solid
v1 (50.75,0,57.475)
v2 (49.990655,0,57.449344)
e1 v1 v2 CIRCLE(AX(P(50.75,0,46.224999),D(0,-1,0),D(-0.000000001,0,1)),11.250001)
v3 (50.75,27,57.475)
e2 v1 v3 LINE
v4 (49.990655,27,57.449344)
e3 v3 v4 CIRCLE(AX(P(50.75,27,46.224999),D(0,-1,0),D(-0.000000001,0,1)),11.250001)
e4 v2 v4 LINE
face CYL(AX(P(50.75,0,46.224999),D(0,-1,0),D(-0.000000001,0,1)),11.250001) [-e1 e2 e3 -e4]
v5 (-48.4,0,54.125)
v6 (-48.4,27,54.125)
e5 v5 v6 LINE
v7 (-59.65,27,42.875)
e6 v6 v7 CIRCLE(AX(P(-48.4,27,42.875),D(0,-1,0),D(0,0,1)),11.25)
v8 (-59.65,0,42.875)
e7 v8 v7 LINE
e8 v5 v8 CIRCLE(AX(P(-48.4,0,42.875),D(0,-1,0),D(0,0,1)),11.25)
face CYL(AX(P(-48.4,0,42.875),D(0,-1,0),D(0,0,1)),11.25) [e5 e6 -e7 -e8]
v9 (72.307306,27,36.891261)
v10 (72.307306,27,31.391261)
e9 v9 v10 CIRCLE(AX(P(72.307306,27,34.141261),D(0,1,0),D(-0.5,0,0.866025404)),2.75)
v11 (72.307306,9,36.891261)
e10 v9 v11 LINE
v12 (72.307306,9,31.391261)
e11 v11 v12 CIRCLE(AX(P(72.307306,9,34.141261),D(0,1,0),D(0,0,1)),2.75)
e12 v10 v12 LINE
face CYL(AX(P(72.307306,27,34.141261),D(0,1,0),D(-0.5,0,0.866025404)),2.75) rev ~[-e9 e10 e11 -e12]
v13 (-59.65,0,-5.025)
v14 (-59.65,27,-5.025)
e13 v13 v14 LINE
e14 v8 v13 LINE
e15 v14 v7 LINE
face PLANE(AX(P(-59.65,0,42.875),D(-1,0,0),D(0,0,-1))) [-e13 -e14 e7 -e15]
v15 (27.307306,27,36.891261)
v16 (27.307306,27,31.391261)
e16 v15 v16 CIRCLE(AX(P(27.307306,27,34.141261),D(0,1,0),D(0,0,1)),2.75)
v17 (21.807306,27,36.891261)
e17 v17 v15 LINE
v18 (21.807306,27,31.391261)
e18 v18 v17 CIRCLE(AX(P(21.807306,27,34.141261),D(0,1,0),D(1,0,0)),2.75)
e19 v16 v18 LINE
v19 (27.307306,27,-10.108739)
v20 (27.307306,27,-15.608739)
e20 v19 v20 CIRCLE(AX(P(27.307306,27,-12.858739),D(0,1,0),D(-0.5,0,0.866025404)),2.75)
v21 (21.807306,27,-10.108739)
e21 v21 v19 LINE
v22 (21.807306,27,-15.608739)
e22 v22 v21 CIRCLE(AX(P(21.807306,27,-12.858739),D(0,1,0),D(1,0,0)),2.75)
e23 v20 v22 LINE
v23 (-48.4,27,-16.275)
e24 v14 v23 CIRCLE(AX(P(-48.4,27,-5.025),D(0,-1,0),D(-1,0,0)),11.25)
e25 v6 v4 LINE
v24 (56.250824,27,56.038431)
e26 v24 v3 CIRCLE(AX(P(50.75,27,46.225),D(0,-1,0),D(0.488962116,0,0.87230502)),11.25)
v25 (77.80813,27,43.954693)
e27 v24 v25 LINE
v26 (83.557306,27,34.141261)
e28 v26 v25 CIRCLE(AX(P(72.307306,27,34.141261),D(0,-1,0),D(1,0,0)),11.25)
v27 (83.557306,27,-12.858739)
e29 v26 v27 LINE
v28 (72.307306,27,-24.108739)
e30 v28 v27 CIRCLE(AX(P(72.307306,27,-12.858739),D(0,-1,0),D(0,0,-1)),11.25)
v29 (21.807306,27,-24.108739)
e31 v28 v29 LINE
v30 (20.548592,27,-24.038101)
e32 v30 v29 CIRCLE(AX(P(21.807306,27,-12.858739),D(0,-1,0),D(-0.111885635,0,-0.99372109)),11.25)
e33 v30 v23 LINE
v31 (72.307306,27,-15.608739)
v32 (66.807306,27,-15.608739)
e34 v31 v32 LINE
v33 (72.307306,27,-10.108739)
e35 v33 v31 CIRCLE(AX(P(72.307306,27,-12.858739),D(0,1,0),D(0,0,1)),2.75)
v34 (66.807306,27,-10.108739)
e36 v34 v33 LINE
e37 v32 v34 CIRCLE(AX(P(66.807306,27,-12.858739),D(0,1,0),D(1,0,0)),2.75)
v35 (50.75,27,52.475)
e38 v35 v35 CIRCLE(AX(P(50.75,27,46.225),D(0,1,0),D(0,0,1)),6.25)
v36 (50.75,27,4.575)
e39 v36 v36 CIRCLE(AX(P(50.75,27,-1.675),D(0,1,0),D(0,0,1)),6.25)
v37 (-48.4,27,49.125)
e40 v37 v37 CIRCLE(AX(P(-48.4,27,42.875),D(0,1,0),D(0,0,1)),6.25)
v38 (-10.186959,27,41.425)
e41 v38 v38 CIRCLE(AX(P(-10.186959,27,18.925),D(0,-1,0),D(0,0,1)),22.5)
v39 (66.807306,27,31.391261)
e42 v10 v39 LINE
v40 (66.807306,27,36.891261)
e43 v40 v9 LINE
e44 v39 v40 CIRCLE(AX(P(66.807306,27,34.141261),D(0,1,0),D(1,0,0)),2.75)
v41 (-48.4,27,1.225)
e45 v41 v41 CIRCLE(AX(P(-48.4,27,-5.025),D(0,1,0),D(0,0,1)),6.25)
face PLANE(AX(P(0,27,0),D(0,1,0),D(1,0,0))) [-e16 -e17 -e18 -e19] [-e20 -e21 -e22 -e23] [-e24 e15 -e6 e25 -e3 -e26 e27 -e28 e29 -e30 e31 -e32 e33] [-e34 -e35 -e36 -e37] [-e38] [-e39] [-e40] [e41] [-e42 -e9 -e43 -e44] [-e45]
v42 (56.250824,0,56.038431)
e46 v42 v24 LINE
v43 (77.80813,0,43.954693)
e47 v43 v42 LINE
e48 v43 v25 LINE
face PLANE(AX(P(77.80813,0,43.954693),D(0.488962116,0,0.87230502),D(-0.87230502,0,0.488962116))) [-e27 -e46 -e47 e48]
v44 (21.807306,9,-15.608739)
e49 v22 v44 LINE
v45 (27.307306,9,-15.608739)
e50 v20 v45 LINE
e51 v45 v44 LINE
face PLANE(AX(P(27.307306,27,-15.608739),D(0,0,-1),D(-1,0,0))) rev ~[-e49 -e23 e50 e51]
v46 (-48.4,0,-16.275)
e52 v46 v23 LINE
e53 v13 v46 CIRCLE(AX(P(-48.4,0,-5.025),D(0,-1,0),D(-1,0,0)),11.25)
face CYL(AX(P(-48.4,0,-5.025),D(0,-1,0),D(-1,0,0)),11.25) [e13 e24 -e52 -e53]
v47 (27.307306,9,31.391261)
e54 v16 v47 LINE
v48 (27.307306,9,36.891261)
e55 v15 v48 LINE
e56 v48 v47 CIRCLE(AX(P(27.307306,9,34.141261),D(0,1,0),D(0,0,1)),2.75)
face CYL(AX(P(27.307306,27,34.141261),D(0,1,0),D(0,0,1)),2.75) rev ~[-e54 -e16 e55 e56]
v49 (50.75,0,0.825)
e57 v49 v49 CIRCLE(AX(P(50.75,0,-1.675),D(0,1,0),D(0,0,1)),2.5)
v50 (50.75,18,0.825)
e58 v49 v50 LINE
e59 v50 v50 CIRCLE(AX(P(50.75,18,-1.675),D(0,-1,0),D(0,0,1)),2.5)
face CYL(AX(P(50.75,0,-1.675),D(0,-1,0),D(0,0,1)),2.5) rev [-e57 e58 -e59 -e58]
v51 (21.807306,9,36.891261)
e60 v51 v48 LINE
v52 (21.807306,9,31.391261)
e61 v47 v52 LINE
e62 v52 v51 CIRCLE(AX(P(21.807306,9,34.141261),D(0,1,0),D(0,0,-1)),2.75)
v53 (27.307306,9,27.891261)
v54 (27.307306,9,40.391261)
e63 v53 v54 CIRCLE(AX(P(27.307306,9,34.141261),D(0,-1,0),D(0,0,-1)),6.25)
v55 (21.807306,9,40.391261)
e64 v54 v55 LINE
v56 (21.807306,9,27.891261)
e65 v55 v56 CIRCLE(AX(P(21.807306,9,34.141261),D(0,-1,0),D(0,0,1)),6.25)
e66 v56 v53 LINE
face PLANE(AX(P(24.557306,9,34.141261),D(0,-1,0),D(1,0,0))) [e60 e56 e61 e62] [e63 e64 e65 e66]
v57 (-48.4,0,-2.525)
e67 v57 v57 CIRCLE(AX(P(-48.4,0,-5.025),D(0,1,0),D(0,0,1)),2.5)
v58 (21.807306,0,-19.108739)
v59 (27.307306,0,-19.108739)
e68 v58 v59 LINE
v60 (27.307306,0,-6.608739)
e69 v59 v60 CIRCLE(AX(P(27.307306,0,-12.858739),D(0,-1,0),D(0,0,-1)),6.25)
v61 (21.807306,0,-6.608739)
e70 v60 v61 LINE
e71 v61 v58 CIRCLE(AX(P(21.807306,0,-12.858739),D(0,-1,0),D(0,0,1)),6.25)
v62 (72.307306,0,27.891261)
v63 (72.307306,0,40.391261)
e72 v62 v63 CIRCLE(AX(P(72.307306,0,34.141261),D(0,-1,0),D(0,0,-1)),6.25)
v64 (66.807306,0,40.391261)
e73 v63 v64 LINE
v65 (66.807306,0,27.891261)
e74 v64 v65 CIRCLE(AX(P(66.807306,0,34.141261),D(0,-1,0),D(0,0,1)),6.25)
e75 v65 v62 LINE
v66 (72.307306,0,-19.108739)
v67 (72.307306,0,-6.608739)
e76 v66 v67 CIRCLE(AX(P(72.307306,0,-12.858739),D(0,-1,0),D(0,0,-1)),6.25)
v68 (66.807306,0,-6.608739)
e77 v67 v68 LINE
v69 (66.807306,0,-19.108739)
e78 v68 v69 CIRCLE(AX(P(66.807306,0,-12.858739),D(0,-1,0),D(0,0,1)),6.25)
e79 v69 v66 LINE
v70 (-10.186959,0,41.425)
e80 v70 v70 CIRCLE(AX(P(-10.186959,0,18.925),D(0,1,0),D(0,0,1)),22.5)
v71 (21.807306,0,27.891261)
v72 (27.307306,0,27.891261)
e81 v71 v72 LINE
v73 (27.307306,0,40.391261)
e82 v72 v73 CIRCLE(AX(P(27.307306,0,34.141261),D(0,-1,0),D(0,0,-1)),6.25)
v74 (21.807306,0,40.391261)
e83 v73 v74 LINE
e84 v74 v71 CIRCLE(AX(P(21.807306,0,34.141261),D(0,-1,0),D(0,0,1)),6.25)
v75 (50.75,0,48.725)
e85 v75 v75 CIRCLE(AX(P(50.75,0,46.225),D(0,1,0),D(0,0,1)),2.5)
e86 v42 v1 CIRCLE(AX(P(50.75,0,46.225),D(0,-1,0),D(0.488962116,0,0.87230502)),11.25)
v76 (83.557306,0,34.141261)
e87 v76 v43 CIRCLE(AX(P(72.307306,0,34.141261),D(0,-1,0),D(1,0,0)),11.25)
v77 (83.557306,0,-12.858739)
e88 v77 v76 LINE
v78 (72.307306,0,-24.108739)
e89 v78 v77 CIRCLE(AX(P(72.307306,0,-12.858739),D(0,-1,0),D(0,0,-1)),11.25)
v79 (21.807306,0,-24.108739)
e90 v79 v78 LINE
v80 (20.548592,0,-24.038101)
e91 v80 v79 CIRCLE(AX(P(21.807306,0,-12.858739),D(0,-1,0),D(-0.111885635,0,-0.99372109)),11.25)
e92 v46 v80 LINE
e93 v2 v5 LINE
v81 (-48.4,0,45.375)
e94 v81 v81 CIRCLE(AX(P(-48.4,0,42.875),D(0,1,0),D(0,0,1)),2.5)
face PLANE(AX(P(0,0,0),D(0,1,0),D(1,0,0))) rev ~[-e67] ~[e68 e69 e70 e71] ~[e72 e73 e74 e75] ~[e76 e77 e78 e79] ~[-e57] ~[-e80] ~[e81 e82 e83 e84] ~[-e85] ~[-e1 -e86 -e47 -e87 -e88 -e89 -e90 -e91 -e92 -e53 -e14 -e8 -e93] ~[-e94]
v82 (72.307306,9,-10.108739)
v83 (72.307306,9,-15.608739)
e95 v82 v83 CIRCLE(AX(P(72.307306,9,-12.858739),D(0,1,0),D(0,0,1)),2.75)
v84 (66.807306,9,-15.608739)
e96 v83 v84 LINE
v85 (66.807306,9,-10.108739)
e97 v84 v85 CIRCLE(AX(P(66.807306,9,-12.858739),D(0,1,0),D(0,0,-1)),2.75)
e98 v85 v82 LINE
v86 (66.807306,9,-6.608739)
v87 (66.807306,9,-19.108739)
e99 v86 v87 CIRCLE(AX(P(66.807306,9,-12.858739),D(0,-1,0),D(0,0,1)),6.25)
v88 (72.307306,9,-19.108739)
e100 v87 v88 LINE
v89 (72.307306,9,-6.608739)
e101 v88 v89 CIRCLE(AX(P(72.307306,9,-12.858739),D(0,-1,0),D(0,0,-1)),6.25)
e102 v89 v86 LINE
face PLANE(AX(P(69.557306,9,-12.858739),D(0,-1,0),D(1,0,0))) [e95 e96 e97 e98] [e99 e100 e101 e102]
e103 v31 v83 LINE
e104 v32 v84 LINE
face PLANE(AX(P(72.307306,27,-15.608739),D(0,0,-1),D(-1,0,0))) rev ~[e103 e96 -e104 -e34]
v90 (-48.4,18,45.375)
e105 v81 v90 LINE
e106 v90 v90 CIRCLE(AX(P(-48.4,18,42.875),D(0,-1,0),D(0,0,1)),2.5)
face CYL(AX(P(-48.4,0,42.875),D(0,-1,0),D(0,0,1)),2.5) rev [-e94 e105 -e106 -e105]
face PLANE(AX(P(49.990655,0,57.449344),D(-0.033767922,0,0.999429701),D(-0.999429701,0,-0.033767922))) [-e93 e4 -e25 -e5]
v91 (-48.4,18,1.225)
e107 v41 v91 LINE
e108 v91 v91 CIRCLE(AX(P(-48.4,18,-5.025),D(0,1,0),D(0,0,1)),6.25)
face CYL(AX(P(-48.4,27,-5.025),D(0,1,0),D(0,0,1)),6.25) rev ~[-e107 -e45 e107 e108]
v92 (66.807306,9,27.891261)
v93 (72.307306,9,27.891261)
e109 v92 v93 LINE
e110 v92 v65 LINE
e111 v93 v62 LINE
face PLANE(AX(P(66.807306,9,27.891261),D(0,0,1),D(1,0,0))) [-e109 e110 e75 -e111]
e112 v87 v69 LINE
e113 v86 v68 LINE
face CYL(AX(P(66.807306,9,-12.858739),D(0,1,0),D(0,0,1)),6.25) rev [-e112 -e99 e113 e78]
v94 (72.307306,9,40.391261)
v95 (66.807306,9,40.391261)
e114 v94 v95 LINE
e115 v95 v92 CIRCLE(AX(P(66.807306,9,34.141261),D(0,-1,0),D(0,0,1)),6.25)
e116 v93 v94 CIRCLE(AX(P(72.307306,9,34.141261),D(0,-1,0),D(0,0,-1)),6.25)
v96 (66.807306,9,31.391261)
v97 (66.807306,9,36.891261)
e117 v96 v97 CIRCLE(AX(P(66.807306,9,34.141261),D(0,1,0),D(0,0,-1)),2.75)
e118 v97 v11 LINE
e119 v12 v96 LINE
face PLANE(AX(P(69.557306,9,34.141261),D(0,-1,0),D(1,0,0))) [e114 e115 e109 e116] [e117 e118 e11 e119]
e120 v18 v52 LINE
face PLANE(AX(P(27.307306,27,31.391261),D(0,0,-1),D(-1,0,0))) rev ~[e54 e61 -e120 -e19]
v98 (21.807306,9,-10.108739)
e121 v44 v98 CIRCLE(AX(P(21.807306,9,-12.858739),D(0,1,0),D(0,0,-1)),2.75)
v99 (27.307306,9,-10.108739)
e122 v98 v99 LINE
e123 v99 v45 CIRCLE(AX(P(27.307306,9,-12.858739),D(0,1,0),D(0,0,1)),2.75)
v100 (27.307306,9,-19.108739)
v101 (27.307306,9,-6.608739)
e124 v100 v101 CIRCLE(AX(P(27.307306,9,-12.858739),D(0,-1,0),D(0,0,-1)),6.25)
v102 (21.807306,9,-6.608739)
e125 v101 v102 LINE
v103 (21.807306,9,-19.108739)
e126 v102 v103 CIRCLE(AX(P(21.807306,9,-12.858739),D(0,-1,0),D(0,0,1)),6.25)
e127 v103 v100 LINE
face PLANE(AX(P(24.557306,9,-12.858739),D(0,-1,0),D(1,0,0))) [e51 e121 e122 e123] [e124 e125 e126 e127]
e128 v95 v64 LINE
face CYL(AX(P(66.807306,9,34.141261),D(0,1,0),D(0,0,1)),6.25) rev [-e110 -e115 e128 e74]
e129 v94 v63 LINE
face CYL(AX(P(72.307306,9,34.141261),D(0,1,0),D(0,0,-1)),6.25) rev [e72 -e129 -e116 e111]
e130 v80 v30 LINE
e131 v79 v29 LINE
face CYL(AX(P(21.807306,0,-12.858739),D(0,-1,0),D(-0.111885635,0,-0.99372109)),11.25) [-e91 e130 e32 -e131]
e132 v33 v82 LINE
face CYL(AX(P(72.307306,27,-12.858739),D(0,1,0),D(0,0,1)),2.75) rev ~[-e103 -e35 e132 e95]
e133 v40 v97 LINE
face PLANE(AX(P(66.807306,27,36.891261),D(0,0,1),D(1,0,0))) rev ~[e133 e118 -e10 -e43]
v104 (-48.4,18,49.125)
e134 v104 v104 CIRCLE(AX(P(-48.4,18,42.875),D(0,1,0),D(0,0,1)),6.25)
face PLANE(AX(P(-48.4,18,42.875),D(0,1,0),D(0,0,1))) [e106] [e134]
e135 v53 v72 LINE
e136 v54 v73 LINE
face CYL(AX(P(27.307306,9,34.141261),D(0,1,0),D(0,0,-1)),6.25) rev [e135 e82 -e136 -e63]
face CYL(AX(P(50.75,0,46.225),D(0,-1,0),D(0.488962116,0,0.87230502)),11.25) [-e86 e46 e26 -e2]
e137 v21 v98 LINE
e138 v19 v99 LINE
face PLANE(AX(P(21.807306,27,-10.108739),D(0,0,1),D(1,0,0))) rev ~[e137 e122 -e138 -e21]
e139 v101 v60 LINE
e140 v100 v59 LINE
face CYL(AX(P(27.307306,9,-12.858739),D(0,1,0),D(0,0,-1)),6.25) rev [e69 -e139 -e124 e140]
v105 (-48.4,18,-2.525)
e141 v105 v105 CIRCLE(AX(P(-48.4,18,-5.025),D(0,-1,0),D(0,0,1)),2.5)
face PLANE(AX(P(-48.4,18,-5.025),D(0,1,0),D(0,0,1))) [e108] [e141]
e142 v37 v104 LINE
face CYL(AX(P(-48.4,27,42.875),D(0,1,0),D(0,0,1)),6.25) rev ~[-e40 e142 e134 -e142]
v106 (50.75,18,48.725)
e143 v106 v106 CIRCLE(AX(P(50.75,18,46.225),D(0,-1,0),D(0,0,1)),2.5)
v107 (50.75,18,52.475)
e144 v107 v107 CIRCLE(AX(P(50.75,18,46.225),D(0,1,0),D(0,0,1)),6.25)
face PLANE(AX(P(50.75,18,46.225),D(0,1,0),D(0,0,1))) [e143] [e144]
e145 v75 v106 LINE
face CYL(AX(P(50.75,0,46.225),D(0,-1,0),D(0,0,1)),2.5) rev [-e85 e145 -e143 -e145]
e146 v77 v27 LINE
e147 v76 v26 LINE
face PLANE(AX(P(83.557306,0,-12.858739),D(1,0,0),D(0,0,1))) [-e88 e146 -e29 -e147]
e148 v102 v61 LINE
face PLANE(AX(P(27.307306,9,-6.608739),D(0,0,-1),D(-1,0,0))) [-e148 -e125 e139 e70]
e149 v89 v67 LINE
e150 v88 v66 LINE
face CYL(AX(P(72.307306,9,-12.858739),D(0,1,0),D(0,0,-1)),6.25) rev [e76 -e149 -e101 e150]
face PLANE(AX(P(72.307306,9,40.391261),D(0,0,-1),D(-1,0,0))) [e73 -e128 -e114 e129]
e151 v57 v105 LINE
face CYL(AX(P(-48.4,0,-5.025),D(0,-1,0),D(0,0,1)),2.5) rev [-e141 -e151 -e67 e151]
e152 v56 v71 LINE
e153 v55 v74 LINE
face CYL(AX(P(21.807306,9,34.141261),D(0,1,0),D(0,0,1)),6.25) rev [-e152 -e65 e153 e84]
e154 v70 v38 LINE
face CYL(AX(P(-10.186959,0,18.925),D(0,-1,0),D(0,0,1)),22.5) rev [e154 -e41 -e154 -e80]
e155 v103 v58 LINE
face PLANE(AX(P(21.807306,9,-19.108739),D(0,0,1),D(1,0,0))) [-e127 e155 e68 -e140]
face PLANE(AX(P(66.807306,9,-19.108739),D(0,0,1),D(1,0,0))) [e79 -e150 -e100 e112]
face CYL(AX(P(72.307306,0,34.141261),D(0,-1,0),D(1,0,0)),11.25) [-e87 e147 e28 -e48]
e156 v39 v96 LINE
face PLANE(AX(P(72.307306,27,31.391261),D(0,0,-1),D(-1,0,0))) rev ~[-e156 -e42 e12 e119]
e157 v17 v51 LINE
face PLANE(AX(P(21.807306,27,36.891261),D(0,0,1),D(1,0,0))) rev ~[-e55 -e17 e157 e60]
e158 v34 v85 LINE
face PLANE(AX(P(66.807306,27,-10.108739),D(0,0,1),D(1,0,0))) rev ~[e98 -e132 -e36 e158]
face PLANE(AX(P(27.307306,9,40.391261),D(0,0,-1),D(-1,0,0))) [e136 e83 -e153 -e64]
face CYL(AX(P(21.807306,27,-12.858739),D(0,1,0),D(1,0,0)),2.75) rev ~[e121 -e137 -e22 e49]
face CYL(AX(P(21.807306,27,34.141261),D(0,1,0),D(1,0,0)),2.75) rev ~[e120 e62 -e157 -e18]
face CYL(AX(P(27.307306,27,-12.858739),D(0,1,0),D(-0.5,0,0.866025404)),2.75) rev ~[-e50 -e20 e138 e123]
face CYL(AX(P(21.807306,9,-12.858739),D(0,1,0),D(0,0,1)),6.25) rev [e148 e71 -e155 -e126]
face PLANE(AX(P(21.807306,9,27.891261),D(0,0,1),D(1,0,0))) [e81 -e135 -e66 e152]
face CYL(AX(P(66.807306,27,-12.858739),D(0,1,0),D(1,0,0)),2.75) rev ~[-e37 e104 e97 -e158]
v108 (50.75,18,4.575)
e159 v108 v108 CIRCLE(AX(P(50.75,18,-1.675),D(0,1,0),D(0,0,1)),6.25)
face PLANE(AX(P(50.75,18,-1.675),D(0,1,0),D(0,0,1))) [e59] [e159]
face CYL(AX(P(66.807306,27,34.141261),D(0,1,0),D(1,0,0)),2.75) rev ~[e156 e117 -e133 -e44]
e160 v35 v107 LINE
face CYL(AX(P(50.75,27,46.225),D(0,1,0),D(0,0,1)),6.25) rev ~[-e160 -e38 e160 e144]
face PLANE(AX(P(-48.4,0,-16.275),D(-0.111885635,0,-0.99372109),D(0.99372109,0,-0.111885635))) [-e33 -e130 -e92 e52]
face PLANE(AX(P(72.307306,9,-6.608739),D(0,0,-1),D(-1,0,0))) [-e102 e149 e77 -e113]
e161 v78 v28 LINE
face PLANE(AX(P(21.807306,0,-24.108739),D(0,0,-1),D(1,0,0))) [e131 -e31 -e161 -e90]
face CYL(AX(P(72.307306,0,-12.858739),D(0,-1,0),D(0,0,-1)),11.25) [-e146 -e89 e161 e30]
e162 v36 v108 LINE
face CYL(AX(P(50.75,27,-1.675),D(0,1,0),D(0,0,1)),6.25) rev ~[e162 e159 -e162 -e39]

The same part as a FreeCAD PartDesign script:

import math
import FreeCAD as App
import Part
import Sketcher
from FreeCAD import Vector


def add_polygon(sketch, points):
    """Adds a closed chain of lines whose ends are joined by coincident constraints."""
    first, n = sketch.GeometryCount, len(points)
    for a, b in zip(points, points[1:] + points[:1]):
        sketch.addGeometry(Part.LineSegment(App.Vector(*a, 0), App.Vector(*b, 0)), False)
    for i in range(n):
        sketch.addConstraint(Sketcher.Constraint("Coincident", first + i, 2, first + (i + 1) % n, 1))

doc = App.newDocument("Part")
body = doc.addObject("PartDesign::Body", "Body")

sketch1 = body.newObject("Sketcher::SketchObject", "Sketch")
sketch1.AttachmentSupport = (doc.getObject("XZ_Plane"), [""])
sketch1.MapMode = "FlatFace"
add_polygon(sketch1, [(-75.2, -55.1), (-75.2, 55.1), (75.2, 55.1), (75.2, -55.1)])
sketch1.addGeometry(Part.Circle(Vector(-48.4, 42.9, 0), Vector(0, 0, 1), 2.5), False)
sketch1.addGeometry(Part.Circle(Vector(50.8, 46.2, 0), Vector(0, 0, 1), 2.5), False)
sketch1.addGeometry(Part.Circle(Vector(-48.4, -5, 0), Vector(0, 0, 1), 2.5), False)
sketch1.addGeometry(Part.Circle(Vector(50.8, -1.7, 0), Vector(0, 0, 1), 2.5), False)
sketch1.addConstraint([
    Sketcher.Constraint("Vertical", 0),
    Sketcher.Constraint("Horizontal", 1),
    Sketcher.Constraint("Vertical", 2),
    Sketcher.Constraint("Horizontal", 3),
    Sketcher.Constraint("Equal", 4, 5),
    Sketcher.Constraint("Equal", 5, 6),
    Sketcher.Constraint("Equal", 6, 7),
    Sketcher.Constraint("Symmetric", 0, 2, 2, 2, -1, 1),
    Sketcher.Constraint("Vertical", 4, 3, 6, 3),
    Sketcher.Constraint("Vertical", 5, 3, 7, 3),
    Sketcher.Constraint("Diameter", 4, 5.0),
    Sketcher.Constraint("DistanceX", 1, 1, 1, 2, 150.5),
    Sketcher.Constraint("DistanceX", 0, 2, 5, 3, 126.0),
    Sketcher.Constraint("DistanceY", 2, 2, 4, 3, 98.0),
    Sketcher.Constraint("DistanceY", 0, 1, 0, 2, 110.25),
    Sketcher.Constraint("DistanceX", 4, 3, -1, 1, 48.4),
    Sketcher.Constraint("DistanceY", 6, 3, 4, 3, 47.9),
    Sketcher.Constraint("DistanceY", 7, 3, 5, 3, 47.9),
    Sketcher.Constraint("DistanceY", 5, 3, 0, 2, 8.9),
])
pad1 = body.newObject("PartDesign::Pad", "Pad")
pad1.Profile = sketch1
pad1.Length = 27
pad1.Reversed = True

sketch2 = body.newObject("Sketcher::SketchObject", "Sketch001")
sketch2.AttachmentSupport = (doc.getObject("XZ_Plane"), [""])
sketch2.MapMode = "FlatFace"
add_polygon(sketch2, [(-150, -100), (-150, 100), (150, 100), (150, -100)])
add_polygon(sketch2, [(75, 55), (-75, 55), (-75, -55), (75, -55)])
sketch2.addConstraint([
    Sketcher.Constraint("Vertical", 0),
    Sketcher.Constraint("Horizontal", 1),
    Sketcher.Constraint("Vertical", 2),
    Sketcher.Constraint("Horizontal", 3),
    Sketcher.Constraint("Horizontal", 4),
    Sketcher.Constraint("Vertical", 5),
    Sketcher.Constraint("Horizontal", 6),
    Sketcher.Constraint("Vertical", 7),
    Sketcher.Constraint("Symmetric", 0, 2, 2, 2, -1, 1),
    Sketcher.Constraint("Symmetric", 4, 2, 6, 2, -1, 1),
    Sketcher.Constraint("DistanceX", 1, 1, 1, 2, 300.0),
    Sketcher.Constraint("DistanceY", 0, 1, 0, 2, 200.0),
    Sketcher.Constraint("DistanceX", 4, 2, 4, 1, 150.5),
    Sketcher.Constraint("DistanceY", 5, 2, 5, 1, 110.25),
])
pad2 = body.newObject("PartDesign::Pad", "Pad001")
pad2.Profile = sketch2
pad2.Length = 27
pad2.Reversed = True

sketch3 = body.newObject("Sketcher::SketchObject", "Sketch002")
sketch3.AttachmentSupport = (doc.getObject("XZ_Plane"), [""])
sketch3.MapMode = "FlatFace"
sketch3.AttachmentOffset = App.Placement(Vector(0, 0, -27), App.Rotation())
sketch3.addGeometry([
    Part.Circle(Vector(-48, -5, 0), Vector(0, 0, 1), 6),
    Part.Circle(Vector(-48, 43, 0), Vector(0, 0, 1), 6),
    Part.Circle(Vector(51, 46, 0), Vector(0, 0, 1), 6),
    Part.Circle(Vector(51, -2, 0), Vector(0, 0, 1), 6),
], False)
sketch3.addConstraint([
    Sketcher.Constraint("Equal", 0, 1),
    Sketcher.Constraint("Equal", 1, 2),
    Sketcher.Constraint("Equal", 2, 3),
    Sketcher.Constraint("Vertical", 0, 3, 1, 3),
    Sketcher.Constraint("Vertical", 2, 3, 3, 3),
    Sketcher.Constraint("Diameter", 0, 12.5),
    Sketcher.Constraint("DistanceX", 0, 3, -1, 1, 48.4),
    Sketcher.Constraint("DistanceY", 0, 3, 1, 3, 47.9),
    Sketcher.Constraint("DistanceY", 3, 3, 2, 3, 47.9),
    Sketcher.Constraint("DistanceX", -1, 1, 2, 3, 50.75),
    Sketcher.Constraint("DistanceY", 1, 3, 2, 3, 3.35),
    Sketcher.Constraint("DistanceY", 0, 3, -1, 1, 5.025),
])
pocket1 = body.newObject("PartDesign::Pocket", "Pocket")
pocket1.Profile = sketch3
pocket1.Length = 9
pocket1.Reversed = True

sketch4 = body.newObject("Sketcher::SketchObject", "Sketch003")
sketch4.AttachmentSupport = (doc.getObject("XZ_Plane"), [""])
sketch4.MapMode = "FlatFace"
sketch4.AttachmentOffset = App.Placement(Vector(0, 0, -27), App.Rotation())
sketch4.addGeometry([
    Part.ArcOfCircle(Part.Circle(Vector(27.3, -12.9, 0), Vector(0, 0, 1), 2.8), math.radians(-90), math.radians(90)),
    Part.LineSegment(Vector(27.3, -15.6, 0), Vector(21.8, -15.6, 0)),
    Part.ArcOfCircle(Part.Circle(Vector(21.8, -12.9, 0), Vector(0, 0, 1), 2.8), math.radians(90), math.radians(270)),
    Part.LineSegment(Vector(21.8, -10.1, 0), Vector(27.3, -10.1, 0)),
    Part.ArcOfCircle(Part.Circle(Vector(72.3, -12.9, 0), Vector(0, 0, 1), 2.8), math.radians(-90), math.radians(90)),
    Part.LineSegment(Vector(72.3, -15.6, 0), Vector(66.8, -15.6, 0)),
    Part.ArcOfCircle(Part.Circle(Vector(66.8, -12.9, 0), Vector(0, 0, 1), 2.8), math.radians(90), math.radians(270)),
    Part.LineSegment(Vector(66.8, -10.1, 0), Vector(72.3, -10.1, 0)),
    Part.ArcOfCircle(Part.Circle(Vector(72.3, 34.1, 0), Vector(0, 0, 1), 2.8), math.radians(-90), math.radians(90)),
    Part.LineSegment(Vector(72.3, 31.4, 0), Vector(66.8, 31.4, 0)),
    Part.ArcOfCircle(Part.Circle(Vector(66.8, 34.1, 0), Vector(0, 0, 1), 2.8), math.radians(90), math.radians(270)),
    Part.LineSegment(Vector(66.8, 36.9, 0), Vector(72.3, 36.9, 0)),
    Part.LineSegment(Vector(27.3, 31.4, 0), Vector(21.8, 31.4, 0)),
    Part.ArcOfCircle(Part.Circle(Vector(21.8, 34.1, 0), Vector(0, 0, 1), 2.8), math.radians(90), math.radians(270)),
    Part.LineSegment(Vector(21.8, 36.9, 0), Vector(27.3, 36.9, 0)),
    Part.ArcOfCircle(Part.Circle(Vector(27.3, 34.1, 0), Vector(0, 0, 1), 2.8), math.radians(-90), math.radians(90)),
], False)
sketch4.addConstraint([
    Sketcher.Constraint("Tangent", 0, 1, 1, 1),
    Sketcher.Constraint("Tangent", 1, 2, 2, 2),
    Sketcher.Constraint("Tangent", 2, 1, 3, 1),
    Sketcher.Constraint("Tangent", 3, 2, 0, 2),
    Sketcher.Constraint("Tangent", 4, 1, 5, 1),
    Sketcher.Constraint("Tangent", 5, 2, 6, 2),
    Sketcher.Constraint("Tangent", 6, 1, 7, 1),
    Sketcher.Constraint("Tangent", 7, 2, 4, 2),
    Sketcher.Constraint("Tangent", 8, 1, 9, 1),
    Sketcher.Constraint("Tangent", 9, 2, 10, 2),
    Sketcher.Constraint("Tangent", 10, 1, 11, 1),
    Sketcher.Constraint("Tangent", 11, 2, 8, 2),
    Sketcher.Constraint("Tangent", 12, 2, 13, 2),
    Sketcher.Constraint("Tangent", 13, 1, 14, 1),
    Sketcher.Constraint("Tangent", 14, 2, 15, 2),
    Sketcher.Constraint("Tangent", 15, 1, 12, 1),
    Sketcher.Constraint("Horizontal", 1),
    Sketcher.Constraint("Horizontal", 3),
    Sketcher.Constraint("Horizontal", 5),
    Sketcher.Constraint("Horizontal", 7),
    Sketcher.Constraint("Horizontal", 9),
    Sketcher.Constraint("Horizontal", 11),
    Sketcher.Constraint("Horizontal", 12),
    Sketcher.Constraint("Horizontal", 14),
    Sketcher.Constraint("Equal", 2, 4),
    Sketcher.Constraint("Equal", 6, 8),
    Sketcher.Constraint("Equal", 10, 13),
    Sketcher.Constraint("Horizontal", 2, 3, 4, 3),
    Sketcher.Constraint("Horizontal", 10, 3, 13, 3),
    Sketcher.Constraint("Vertical", 4, 3, 8, 3),
    Sketcher.Constraint("Vertical", 6, 3, 10, 3),
    Sketcher.Constraint("Vertical", 2, 3, 13, 3),
    Sketcher.Constraint("Vertical", 0, 3, 15, 3),
    Sketcher.Constraint("Equal", 3, 5),
    Sketcher.Constraint("Radius", 0, 2.75),
    Sketcher.Constraint("DistanceX", 1, 2, 1, 1, 5.5),
    Sketcher.Constraint("DistanceX", 0, 3, 4, 3, 45.0),
    Sketcher.Constraint("DistanceY", 4, 3, 8, 3, 47.0),
    Sketcher.Constraint("DistanceY", 0, 3, -1, 1, 12.858739),
    Sketcher.Constraint("DistanceX", -1, 1, 0, 3, 27.307306),
])
pocket2 = body.newObject("PartDesign::Pocket", "Pocket001")
pocket2.Profile = sketch4
pocket2.Type = "ThroughAll"
pocket2.Reversed = True

sketch5 = body.newObject("Sketcher::SketchObject", "Sketch004")
sketch5.AttachmentSupport = (doc.getObject("XZ_Plane"), [""])
sketch5.MapMode = "FlatFace"
sketch5.AttachmentOffset = App.Placement(Vector(0, 0, -9), App.Rotation())
sketch5.addGeometry([
    Part.ArcOfCircle(Part.Circle(Vector(21.8, 34.1, 0), Vector(0, 0, 1), 6.2), math.radians(90), math.radians(270)),
    Part.LineSegment(Vector(21.8, 27.9, 0), Vector(27.3, 27.9, 0)),
    Part.ArcOfCircle(Part.Circle(Vector(27.3, 34.1, 0), Vector(0, 0, 1), 6.2), math.radians(-90), math.radians(90)),
    Part.LineSegment(Vector(27.3, 40.4, 0), Vector(21.8, 40.4, 0)),
    Part.ArcOfCircle(Part.Circle(Vector(21.8, 34.1, 0), Vector(0, 0, 1), 2.8), math.radians(90), math.radians(270)),
    Part.LineSegment(Vector(21.8, 36.9, 0), Vector(27.3, 36.9, 0)),
    Part.ArcOfCircle(Part.Circle(Vector(27.3, 34.1, 0), Vector(0, 0, 1), 2.8), math.radians(-90), math.radians(90)),
    Part.LineSegment(Vector(27.3, 31.4, 0), Vector(21.8, 31.4, 0)),
    Part.ArcOfCircle(Part.Circle(Vector(72.3, 34.1, 0), Vector(0, 0, 1), 6.2), math.radians(-90), math.radians(90)),
    Part.LineSegment(Vector(72.3, 40.4, 0), Vector(66.8, 40.4, 0)),
    Part.ArcOfCircle(Part.Circle(Vector(66.8, 34.1, 0), Vector(0, 0, 1), 6.2), math.radians(90), math.radians(270)),
    Part.LineSegment(Vector(66.8, 27.9, 0), Vector(72.3, 27.9, 0)),
    Part.ArcOfCircle(Part.Circle(Vector(72.3, 34.1, 0), Vector(0, 0, 1), 2.8), math.radians(-90), math.radians(90)),
    Part.LineSegment(Vector(72.3, 31.4, 0), Vector(66.8, 31.4, 0)),
    Part.ArcOfCircle(Part.Circle(Vector(66.8, 34.1, 0), Vector(0, 0, 1), 2.8), math.radians(90), math.radians(270)),
    Part.LineSegment(Vector(66.8, 36.9, 0), Vector(72.3, 36.9, 0)),
    Part.ArcOfCircle(Part.Circle(Vector(72.3, -12.9, 0), Vector(0, 0, 1), 6.2), math.radians(-90), math.radians(90)),
    Part.LineSegment(Vector(72.3, -6.6, 0), Vector(66.8, -6.6, 0)),
    Part.ArcOfCircle(Part.Circle(Vector(66.8, -12.9, 0), Vector(0, 0, 1), 6.2), math.radians(90), math.radians(270)),
    Part.LineSegment(Vector(66.8, -19.1, 0), Vector(72.3, -19.1, 0)),
    Part.ArcOfCircle(Part.Circle(Vector(72.3, -12.9, 0), Vector(0, 0, 1), 2.8), math.radians(-90), math.radians(90)),
    Part.LineSegment(Vector(72.3, -15.6, 0), Vector(66.8, -15.6, 0)),
    Part.ArcOfCircle(Part.Circle(Vector(66.8, -12.9, 0), Vector(0, 0, 1), 2.8), math.radians(90), math.radians(270)),
    Part.LineSegment(Vector(66.8, -10.1, 0), Vector(72.3, -10.1, 0)),
    Part.ArcOfCircle(Part.Circle(Vector(21.8, -12.9, 0), Vector(0, 0, 1), 6.2), math.radians(90), math.radians(270)),
    Part.LineSegment(Vector(21.8, -19.1, 0), Vector(27.3, -19.1, 0)),
    Part.ArcOfCircle(Part.Circle(Vector(27.3, -12.9, 0), Vector(0, 0, 1), 6.2), math.radians(-90), math.radians(90)),
    Part.LineSegment(Vector(27.3, -6.6, 0), Vector(21.8, -6.6, 0)),
    Part.ArcOfCircle(Part.Circle(Vector(21.8, -12.9, 0), Vector(0, 0, 1), 2.8), math.radians(90), math.radians(270)),
    Part.LineSegment(Vector(21.8, -10.1, 0), Vector(27.3, -10.1, 0)),
    Part.ArcOfCircle(Part.Circle(Vector(27.3, -12.9, 0), Vector(0, 0, 1), 2.8), math.radians(-90), math.radians(90)),
    Part.LineSegment(Vector(27.3, -15.6, 0), Vector(21.8, -15.6, 0)),
], False)
sketch5.addConstraint([
    Sketcher.Constraint("Tangent", 0, 2, 1, 1),
    Sketcher.Constraint("Tangent", 1, 2, 2, 1),
    Sketcher.Constraint("Tangent", 2, 2, 3, 1),
    Sketcher.Constraint("Tangent", 3, 2, 0, 1),
    Sketcher.Constraint("Tangent", 4, 1, 5, 1),
    Sketcher.Constraint("Tangent", 5, 2, 6, 2),
    Sketcher.Constraint("Tangent", 6, 1, 7, 1),
    Sketcher.Constraint("Tangent", 7, 2, 4, 2),
    Sketcher.Constraint("Tangent", 8, 2, 9, 1),
    Sketcher.Constraint("Tangent", 9, 2, 10, 1),
    Sketcher.Constraint("Tangent", 10, 2, 11, 1),
    Sketcher.Constraint("Tangent", 11, 2, 8, 1),
    Sketcher.Constraint("Tangent", 12, 1, 13, 1),
    Sketcher.Constraint("Tangent", 13, 2, 14, 2),
    Sketcher.Constraint("Tangent", 14, 1, 15, 1),
    Sketcher.Constraint("Tangent", 15, 2, 12, 2),
    Sketcher.Constraint("Tangent", 16, 2, 17, 1),
    Sketcher.Constraint("Tangent", 17, 2, 18, 1),
    Sketcher.Constraint("Tangent", 18, 2, 19, 1),
    Sketcher.Constraint("Tangent", 19, 2, 16, 1),
    Sketcher.Constraint("Tangent", 20, 1, 21, 1),
    Sketcher.Constraint("Tangent", 21, 2, 22, 2),
    Sketcher.Constraint("Tangent", 22, 1, 23, 1),
    Sketcher.Constraint("Tangent", 23, 2, 20, 2),
    Sketcher.Constraint("Tangent", 24, 2, 25, 1),
    Sketcher.Constraint("Tangent", 25, 2, 26, 1),
    Sketcher.Constraint("Tangent", 26, 2, 27, 1),
    Sketcher.Constraint("Tangent", 27, 2, 24, 1),
    Sketcher.Constraint("Tangent", 28, 1, 29, 1),
    Sketcher.Constraint("Tangent", 29, 2, 30, 2),
    Sketcher.Constraint("Tangent", 30, 1, 31, 1),
    Sketcher.Constraint("Tangent", 31, 2, 28, 2),
    Sketcher.Constraint("Horizontal", 1),
    Sketcher.Constraint("Horizontal", 3),
    Sketcher.Constraint("Horizontal", 5),
    Sketcher.Constraint("Horizontal", 7),
    Sketcher.Constraint("Horizontal", 9),
    Sketcher.Constraint("Horizontal", 11),
    Sketcher.Constraint("Horizontal", 13),
    Sketcher.Constraint("Horizontal", 15),
    Sketcher.Constraint("Horizontal", 17),
    Sketcher.Constraint("Horizontal", 19),
    Sketcher.Constraint("Horizontal", 21),
    Sketcher.Constraint("Horizontal", 23),
    Sketcher.Constraint("Horizontal", 25),
    Sketcher.Constraint("Horizontal", 27),
    Sketcher.Constraint("Horizontal", 29),
    Sketcher.Constraint("Horizontal", 31),
    Sketcher.Constraint("Coincident", 4, 3, 0, 3),
    Sketcher.Constraint("Coincident", 12, 3, 8, 3),
    Sketcher.Constraint("Coincident", 20, 3, 16, 3),
    Sketcher.Constraint("Coincident", 28, 3, 24, 3),
    Sketcher.Constraint("Equal", 2, 8),
    Sketcher.Constraint("Equal", 6, 12),
    Sketcher.Constraint("Equal", 10, 16),
    Sketcher.Constraint("Equal", 14, 20),
    Sketcher.Constraint("Equal", 18, 24),
    Sketcher.Constraint("Equal", 22, 28),
    Sketcher.Constraint("Horizontal", 6, 3, 8, 3),
    Sketcher.Constraint("Horizontal", 22, 3, 24, 3),
    Sketcher.Constraint("Vertical", 12, 3, 16, 3),
    Sketcher.Constraint("Vertical", 14, 3, 18, 3),
    Sketcher.Constraint("Vertical", 14, 3, 22, 3),
    Sketcher.Constraint("Vertical", 4, 3, 24, 3),
    Sketcher.Constraint("Vertical", 6, 3, 26, 3),
    Sketcher.Constraint("Vertical", 6, 3, 30, 3),
    Sketcher.Constraint("Vertical", 30, 3, 1, 2),
    Sketcher.Constraint("Vertical", 22, 3, 9, 2),
    Sketcher.Constraint("Equal", 7, 9),
    Sketcher.Constraint("Radius", 0, 6.25),
    Sketcher.Constraint("Radius", 4, 2.75),
    Sketcher.Constraint("DistanceX", 1, 1, 1, 2, 5.5),
    Sketcher.Constraint("DistanceX", 2, 3, 8, 3, 45.0),
    Sketcher.Constraint("DistanceY", 16, 3, 8, 3, 47.0),
    Sketcher.Constraint("DistanceY", -1, 1, 0, 3, 34.141261),
    Sketcher.Constraint("DistanceX", -1, 1, 0, 3, 21.807306),
])
pocket3 = body.newObject("PartDesign::Pocket", "Pocket002")
pocket3.Profile = sketch5
pocket3.Length = 9
pocket3.Reversed = True

sketch6 = body.newObject("Sketcher::SketchObject", "Sketch005")
sketch6.AttachmentSupport = (doc.getObject("XZ_Plane"), [""])
sketch6.MapMode = "FlatFace"
add_polygon(sketch6, [(-150, -100), (-150, 100), (150, 100), (150, -100)])
sketch6.addGeometry(Part.ArcOfCircle(Part.Circle(Vector(-48.4, 42.9, 0), Vector(0, 0, 1), 11.3), math.radians(90), math.radians(180)), False)
sketch6.addGeometry(Part.LineSegment(Vector(-59.6, 42.9, 0), Vector(-59.6, -5, 0)), False)
sketch6.addGeometry(Part.ArcOfCircle(Part.Circle(Vector(-48.4, -5, 0), Vector(0, 0, 1), 11.3), math.radians(-180), math.radians(-90)), False)
sketch6.addGeometry(Part.LineSegment(Vector(-48.4, -16.3, 0), Vector(20.5, -24, 0)), False)
sketch6.addGeometry(Part.ArcOfCircle(Part.Circle(Vector(21.8, -12.9, 0), Vector(0, 0, 1), 11.2), math.radians(-96.42), math.radians(-90)), False)
sketch6.addGeometry(Part.LineSegment(Vector(21.8, -24.1, 0), Vector(72.3, -24.1, 0)), False)
sketch6.addGeometry(Part.ArcOfCircle(Part.Circle(Vector(72.3, -12.9, 0), Vector(0, 0, 1), 11.2), math.radians(-90), math.radians(0)), False)
sketch6.addGeometry(Part.LineSegment(Vector(83.6, -12.9, 0), Vector(83.6, 34.1, 0)), False)
sketch6.addGeometry(Part.ArcOfCircle(Part.Circle(Vector(72.3, 34.1, 0), Vector(0, 0, 1), 11.3), math.radians(0), math.radians(61)), False)
sketch6.addGeometry(Part.LineSegment(Vector(77.8, 44, 0), Vector(56.3, 56, 0)), False)
sketch6.addGeometry(Part.ArcOfCircle(Part.Circle(Vector(50.7, 46.2, 0), Vector(0, 0, 1), 11.2), math.radians(61), math.radians(90)), False)
sketch6.addGeometry(Part.ArcOfCircle(Part.Circle(Vector(50.8, 46.2, 0), Vector(0, 0, 1), 11.3), math.radians(90), math.radians(93.87)), False)
sketch6.addGeometry(Part.LineSegment(Vector(50, 57.4, 0), Vector(-48.4, 54.1, 0)), False)
sketch6.addGeometry(Part.Circle(Vector(-10.2, 18.9, 0), Vector(0, 0, 1), 22.5), False)
sketch6.addConstraint([
    Sketcher.Constraint("Tangent", 4, 2, 5, 1),
    Sketcher.Constraint("Tangent", 5, 2, 6, 1),
    Sketcher.Constraint("Coincident", 6, 2, 7, 1),
    Sketcher.Constraint("Tangent", 7, 2, 8, 1),
    Sketcher.Constraint("Tangent", 8, 2, 9, 1),
    Sketcher.Constraint("Tangent", 9, 2, 10, 1),
    Sketcher.Constraint("Tangent", 10, 2, 11, 1),
    Sketcher.Constraint("Tangent", 11, 2, 12, 1),
    Sketcher.Constraint("Tangent", 12, 2, 13, 1),
    Sketcher.Constraint("Tangent", 13, 2, 14, 1),
    Sketcher.Constraint("Tangent", 14, 2, 15, 1),
    Sketcher.Constraint("Coincident", 15, 2, 16, 1),
    Sketcher.Constraint("Coincident", 16, 2, 4, 1),
    Sketcher.Constraint("Vertical", 0),
    Sketcher.Constraint("Horizontal", 1),
    Sketcher.Constraint("Vertical", 2),
    Sketcher.Constraint("Horizontal", 3),
    Sketcher.Constraint("Vertical", 5),
    Sketcher.Constraint("Horizontal", 9),
    Sketcher.Constraint("Vertical", 11),
    Sketcher.Constraint("Equal", 4, 6),
    Sketcher.Constraint("Equal", 6, 8),
    Sketcher.Constraint("Equal", 8, 10),
    Sketcher.Constraint("Equal", 10, 12),
    Sketcher.Constraint("Equal", 12, 14),
    Sketcher.Constraint("Equal", 14, 15),
    Sketcher.Constraint("Symmetric", 0, 2, 2, 2, -1, 1),
    Sketcher.Constraint("Vertical", 4, 3, 6, 2),
    Sketcher.Constraint("Vertical", 15, 3, 14, 2),
    Sketcher.Constraint("Vertical", 6, 2, 16, 2),
    Sketcher.Constraint("Diameter", 17, 45.0),
    Sketcher.Constraint("DistanceX", 1, 1, 1, 2, 300.0),
    Sketcher.Constraint("DistanceY", 0, 1, 0, 2, 200.0),
    Sketcher.Constraint("DistanceY", 11, 1, 11, 2, 47.0),
    Sketcher.Constraint("Radius", 4, 11.25),
    Sketcher.Constraint("DistanceX", 9, 1, 9, 2, 50.5),
    Sketcher.Constraint("DistanceY", 5, 2, 5, 1, 47.9),
    Sketcher.Constraint("DistanceX", 4, 3, -1, 1, 48.4),
    Sketcher.Constraint("DistanceY", 17, 3, 15, 3, 27.299999),
    Sketcher.Constraint("DistanceY", 6, 2, 17, 3, 35.2),
    Sketcher.Constraint("DistanceX", -1, 1, 14, 3, 50.75),
    Sketcher.Constraint("DistanceY", -1, 1, 4, 3, 42.875),
    Sketcher.Constraint("Distance", 16, 98.446799),
    Sketcher.Constraint("DistanceY", 7, 2, -1, 1, 24.038101),
    Sketcher.Constraint("Distance", 7, 69.38425),
    Sketcher.Constraint("DistanceX", 17, 3, -1, 1, 10.186959),
])
pocket4 = body.newObject("PartDesign::Pocket", "Pocket003")
pocket4.Profile = sketch6
pocket4.Length = 183.288233

doc.recompute()
